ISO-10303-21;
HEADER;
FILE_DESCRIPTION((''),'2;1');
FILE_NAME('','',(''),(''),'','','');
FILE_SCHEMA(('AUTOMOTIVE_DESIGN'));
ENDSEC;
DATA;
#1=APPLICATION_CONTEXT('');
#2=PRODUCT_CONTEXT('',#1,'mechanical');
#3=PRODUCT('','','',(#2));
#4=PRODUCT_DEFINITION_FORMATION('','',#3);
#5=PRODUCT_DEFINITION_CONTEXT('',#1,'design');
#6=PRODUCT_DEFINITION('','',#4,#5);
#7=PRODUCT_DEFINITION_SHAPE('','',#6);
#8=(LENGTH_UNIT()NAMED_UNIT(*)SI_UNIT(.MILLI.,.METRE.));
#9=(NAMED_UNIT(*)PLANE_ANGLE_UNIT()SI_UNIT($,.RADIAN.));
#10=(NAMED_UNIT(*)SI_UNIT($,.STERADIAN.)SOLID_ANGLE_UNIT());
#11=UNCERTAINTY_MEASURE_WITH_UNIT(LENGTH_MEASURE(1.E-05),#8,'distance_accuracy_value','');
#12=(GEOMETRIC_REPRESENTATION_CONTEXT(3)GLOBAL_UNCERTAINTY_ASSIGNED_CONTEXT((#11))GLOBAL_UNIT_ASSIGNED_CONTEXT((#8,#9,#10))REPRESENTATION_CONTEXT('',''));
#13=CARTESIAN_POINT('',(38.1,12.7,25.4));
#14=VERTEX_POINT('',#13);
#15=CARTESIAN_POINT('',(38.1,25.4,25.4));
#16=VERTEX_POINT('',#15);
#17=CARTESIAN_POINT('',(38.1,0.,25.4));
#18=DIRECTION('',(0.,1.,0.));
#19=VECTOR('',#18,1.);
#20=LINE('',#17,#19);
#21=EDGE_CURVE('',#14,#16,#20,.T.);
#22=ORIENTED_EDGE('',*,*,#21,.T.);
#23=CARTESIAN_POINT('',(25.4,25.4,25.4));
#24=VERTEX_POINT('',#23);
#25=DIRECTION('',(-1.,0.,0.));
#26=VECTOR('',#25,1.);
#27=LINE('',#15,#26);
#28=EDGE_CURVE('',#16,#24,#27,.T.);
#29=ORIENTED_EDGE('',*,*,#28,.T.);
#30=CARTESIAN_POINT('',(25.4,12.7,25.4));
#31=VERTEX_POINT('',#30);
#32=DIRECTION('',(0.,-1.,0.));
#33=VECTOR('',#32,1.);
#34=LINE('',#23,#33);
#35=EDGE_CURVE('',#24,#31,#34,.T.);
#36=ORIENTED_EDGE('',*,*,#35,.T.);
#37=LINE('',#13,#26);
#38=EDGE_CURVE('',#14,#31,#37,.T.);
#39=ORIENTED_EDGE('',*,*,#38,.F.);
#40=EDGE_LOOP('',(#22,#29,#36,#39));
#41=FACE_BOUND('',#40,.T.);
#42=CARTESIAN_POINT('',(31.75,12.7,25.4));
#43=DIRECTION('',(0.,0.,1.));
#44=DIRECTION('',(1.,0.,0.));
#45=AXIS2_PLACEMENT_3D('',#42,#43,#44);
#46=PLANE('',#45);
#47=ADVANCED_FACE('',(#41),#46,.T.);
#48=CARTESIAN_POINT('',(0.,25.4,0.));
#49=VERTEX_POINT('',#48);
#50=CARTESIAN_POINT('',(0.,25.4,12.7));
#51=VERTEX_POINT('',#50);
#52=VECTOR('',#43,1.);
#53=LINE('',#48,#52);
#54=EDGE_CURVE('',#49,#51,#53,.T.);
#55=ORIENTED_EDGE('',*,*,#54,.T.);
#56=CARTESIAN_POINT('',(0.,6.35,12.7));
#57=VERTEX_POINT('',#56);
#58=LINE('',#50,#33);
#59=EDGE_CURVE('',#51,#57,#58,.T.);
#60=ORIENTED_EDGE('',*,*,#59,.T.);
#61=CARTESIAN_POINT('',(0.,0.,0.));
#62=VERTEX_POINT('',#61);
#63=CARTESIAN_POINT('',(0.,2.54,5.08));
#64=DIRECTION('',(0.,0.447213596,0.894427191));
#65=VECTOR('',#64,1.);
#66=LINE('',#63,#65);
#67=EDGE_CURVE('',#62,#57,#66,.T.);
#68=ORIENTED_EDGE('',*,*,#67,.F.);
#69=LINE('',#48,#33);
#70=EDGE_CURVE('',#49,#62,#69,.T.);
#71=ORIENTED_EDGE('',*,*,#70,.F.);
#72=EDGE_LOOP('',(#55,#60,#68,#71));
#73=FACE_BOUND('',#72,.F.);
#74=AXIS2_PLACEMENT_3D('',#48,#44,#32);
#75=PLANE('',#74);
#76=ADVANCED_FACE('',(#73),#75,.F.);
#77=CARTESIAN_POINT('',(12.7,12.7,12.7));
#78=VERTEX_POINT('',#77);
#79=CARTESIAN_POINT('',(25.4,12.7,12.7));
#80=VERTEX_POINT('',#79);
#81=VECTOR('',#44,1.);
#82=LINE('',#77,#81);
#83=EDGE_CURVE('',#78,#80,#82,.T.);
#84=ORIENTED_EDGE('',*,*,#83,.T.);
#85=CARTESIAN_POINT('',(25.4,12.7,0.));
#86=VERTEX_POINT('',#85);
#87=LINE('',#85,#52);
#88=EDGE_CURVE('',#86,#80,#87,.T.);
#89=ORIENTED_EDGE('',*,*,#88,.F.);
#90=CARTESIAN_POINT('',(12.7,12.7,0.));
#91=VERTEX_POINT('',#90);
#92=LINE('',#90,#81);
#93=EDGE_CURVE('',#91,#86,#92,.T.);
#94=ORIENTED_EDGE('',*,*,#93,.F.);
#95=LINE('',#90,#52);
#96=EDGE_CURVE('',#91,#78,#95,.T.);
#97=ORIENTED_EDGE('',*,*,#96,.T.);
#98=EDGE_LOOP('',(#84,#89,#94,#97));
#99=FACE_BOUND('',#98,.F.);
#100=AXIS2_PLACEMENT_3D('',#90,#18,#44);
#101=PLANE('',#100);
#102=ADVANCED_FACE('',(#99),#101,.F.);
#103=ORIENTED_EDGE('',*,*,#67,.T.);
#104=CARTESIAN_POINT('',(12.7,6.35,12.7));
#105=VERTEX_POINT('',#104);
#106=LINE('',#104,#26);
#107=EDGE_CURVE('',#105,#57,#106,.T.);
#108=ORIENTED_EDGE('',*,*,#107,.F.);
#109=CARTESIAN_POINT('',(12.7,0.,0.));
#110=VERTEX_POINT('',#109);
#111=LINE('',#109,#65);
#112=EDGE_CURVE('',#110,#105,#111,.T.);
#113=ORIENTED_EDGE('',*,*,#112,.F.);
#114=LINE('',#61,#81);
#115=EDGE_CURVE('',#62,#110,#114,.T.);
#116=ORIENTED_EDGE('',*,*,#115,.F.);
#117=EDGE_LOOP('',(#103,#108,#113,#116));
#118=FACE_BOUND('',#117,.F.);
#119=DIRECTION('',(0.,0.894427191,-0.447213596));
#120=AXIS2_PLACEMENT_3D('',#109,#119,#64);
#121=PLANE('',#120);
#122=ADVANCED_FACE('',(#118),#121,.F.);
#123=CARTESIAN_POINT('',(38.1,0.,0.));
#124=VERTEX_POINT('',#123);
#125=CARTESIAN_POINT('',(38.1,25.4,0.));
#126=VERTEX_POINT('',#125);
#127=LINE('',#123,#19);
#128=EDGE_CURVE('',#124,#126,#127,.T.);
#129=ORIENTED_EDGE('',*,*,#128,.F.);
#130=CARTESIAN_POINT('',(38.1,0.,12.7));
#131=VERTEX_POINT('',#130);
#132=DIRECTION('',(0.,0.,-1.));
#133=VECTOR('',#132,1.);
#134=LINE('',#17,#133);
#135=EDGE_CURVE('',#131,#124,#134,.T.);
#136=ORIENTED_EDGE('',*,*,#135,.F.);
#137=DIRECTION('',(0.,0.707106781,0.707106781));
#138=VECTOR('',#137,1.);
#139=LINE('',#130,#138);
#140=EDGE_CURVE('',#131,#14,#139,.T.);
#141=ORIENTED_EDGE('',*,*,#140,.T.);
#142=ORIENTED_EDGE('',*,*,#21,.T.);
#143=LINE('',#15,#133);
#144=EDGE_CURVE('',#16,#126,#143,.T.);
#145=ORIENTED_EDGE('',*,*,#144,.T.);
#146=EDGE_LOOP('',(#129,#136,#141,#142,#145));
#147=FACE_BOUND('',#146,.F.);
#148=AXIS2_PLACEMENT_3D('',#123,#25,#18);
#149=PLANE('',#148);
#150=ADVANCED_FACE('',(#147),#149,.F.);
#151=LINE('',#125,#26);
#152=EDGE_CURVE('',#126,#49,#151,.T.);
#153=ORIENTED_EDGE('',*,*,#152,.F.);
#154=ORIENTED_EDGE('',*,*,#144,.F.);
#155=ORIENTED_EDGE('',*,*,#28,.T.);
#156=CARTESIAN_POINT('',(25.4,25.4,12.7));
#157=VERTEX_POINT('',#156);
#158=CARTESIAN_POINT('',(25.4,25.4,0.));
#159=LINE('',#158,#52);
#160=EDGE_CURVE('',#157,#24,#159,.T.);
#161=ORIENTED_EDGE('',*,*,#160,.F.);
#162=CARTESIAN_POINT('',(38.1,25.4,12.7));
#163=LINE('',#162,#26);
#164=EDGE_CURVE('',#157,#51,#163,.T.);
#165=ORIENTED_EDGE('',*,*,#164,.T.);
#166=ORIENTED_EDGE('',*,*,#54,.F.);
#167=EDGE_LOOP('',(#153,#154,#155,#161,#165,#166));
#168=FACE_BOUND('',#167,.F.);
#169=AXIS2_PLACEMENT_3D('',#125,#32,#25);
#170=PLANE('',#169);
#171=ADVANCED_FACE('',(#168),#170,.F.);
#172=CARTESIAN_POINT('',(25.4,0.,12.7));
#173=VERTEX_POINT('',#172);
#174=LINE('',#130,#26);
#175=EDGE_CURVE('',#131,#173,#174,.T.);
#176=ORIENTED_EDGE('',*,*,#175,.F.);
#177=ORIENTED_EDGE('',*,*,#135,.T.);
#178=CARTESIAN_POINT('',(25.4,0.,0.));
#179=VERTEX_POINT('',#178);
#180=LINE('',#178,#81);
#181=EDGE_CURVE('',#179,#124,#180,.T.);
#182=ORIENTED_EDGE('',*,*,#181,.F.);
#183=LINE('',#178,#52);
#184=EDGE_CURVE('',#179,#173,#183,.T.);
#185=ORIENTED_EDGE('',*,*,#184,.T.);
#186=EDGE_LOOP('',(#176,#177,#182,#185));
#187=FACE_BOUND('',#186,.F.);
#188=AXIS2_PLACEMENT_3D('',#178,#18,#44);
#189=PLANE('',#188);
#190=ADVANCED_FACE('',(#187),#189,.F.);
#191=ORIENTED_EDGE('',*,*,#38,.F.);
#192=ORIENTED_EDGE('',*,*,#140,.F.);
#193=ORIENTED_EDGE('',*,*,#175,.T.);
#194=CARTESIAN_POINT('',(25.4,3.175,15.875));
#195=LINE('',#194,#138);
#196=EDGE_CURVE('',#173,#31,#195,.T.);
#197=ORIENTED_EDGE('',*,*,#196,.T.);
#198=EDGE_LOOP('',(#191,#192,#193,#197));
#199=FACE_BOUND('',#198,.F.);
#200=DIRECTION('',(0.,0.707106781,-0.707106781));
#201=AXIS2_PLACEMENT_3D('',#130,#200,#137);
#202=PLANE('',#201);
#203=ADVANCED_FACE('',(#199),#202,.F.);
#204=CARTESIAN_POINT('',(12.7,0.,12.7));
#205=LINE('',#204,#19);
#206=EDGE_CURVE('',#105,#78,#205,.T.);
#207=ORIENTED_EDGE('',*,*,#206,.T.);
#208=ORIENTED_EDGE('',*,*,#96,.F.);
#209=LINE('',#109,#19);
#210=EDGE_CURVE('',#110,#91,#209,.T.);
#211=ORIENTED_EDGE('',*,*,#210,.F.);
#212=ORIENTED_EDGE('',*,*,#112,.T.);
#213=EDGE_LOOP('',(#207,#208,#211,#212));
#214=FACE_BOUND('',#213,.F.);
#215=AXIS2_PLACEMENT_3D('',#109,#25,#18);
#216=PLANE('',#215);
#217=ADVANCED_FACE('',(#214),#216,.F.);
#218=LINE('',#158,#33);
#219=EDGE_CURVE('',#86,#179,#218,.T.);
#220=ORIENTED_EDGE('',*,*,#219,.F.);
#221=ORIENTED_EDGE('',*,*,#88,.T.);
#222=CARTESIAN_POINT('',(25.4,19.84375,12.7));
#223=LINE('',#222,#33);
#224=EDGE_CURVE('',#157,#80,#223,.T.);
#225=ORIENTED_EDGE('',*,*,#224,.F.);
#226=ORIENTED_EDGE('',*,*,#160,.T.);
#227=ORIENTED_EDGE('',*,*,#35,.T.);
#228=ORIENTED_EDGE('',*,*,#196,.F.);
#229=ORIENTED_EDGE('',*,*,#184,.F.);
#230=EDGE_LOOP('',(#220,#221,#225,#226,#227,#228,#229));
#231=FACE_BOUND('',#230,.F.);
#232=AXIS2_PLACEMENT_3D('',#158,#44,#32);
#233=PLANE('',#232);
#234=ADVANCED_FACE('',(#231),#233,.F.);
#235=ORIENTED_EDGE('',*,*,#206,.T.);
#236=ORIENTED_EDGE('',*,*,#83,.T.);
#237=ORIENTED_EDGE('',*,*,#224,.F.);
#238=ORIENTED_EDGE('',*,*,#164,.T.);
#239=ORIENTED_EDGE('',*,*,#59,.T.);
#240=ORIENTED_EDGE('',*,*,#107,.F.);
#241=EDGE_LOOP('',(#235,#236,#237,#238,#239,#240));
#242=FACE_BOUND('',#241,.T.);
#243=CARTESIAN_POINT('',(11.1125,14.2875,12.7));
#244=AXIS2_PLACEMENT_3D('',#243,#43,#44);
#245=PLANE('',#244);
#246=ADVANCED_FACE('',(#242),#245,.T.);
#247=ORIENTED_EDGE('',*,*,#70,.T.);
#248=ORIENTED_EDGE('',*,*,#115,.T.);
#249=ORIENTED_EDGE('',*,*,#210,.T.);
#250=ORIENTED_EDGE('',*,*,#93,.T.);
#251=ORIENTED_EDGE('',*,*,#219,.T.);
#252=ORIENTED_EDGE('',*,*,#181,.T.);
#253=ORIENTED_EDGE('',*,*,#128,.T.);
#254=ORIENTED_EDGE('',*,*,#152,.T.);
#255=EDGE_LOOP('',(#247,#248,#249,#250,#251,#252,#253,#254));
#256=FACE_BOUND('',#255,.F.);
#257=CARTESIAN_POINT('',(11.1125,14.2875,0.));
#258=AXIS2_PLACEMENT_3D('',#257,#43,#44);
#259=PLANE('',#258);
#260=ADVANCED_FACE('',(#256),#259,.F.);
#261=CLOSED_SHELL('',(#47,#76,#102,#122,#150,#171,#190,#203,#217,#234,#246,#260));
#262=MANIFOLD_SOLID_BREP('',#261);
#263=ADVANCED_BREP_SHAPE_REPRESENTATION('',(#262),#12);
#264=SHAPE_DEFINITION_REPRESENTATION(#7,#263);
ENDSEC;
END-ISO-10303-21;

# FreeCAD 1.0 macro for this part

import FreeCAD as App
import Part
import Sketcher
Q = App.Units.Quantity

doc = App.newDocument("Part")
params = doc.addObject("Spreadsheet::Sheet", "Params")
for row, (alias, value) in enumerate([
    ("sketch1_height", "1 in"),
    ("sketch1_width", "0.5 in"),
    ("pad1_length", "1 in"),
    ("sketch2_height", "1 in"),
    ("sketch2_width", "0.5 in"),
    ("pad2_length", "0.5 in"),
    ("sketch3_height", "0.5 in"),
    ("sketch3_width", "0.25 in"),
    ("pocket1_length", "1 in"),
    ("sketch4_width", "0.5 in"),
    ("pocket2_length", "1 in"),
], start=1):
    params.set(f"A{row}", alias)
    params.set(f"B{row}", "=" + value)
    params.setAlias(f"B{row}", alias)

body = doc.addObject("PartDesign::Body", "Body")

# Sketch on XY plane
sketch1 = doc.addObject("Sketcher::SketchObject", "Sketch")
body.addObject(sketch1)
sketch1.AttachmentSupport = (doc.XY_Plane, [""])
sketch1.MapMode = "FlatFace"
sketch1.addGeometry([
    Part.LineSegment(App.Vector(38, 25, 0), App.Vector(25, 25, 0)),
    Part.LineSegment(App.Vector(25, 25, 0), App.Vector(25, 0, 0)),
    Part.LineSegment(App.Vector(25, 0, 0), App.Vector(38, 0, 0)),
    Part.LineSegment(App.Vector(38, 0, 0), App.Vector(38, 25, 0)),
], False)
sketch1.addConstraint([
    Sketcher.Constraint("Coincident", 0, 2, 1, 1),
    Sketcher.Constraint("Coincident", 1, 2, 2, 1),
    Sketcher.Constraint("Coincident", 2, 2, 3, 1),
    Sketcher.Constraint("Coincident", 3, 2, 0, 1),
    Sketcher.Constraint("Horizontal", 0),
    Sketcher.Constraint("Vertical", 1),
    Sketcher.Constraint("Horizontal", 2),
    Sketcher.Constraint("Vertical", 3),
    Sketcher.Constraint("PointOnObject", 1, 2, -1),
    Sketcher.Constraint("DistanceY", 1, 2, 1, 1, Q("1 in")),
    Sketcher.Constraint("DistanceX", 0, 2, 0, 1, Q("0.5 in")),
    Sketcher.Constraint("DistanceX", -1, 1, 0, 2, Q("1 in")),
])
sketch1.setExpression("Constraints[9]", "Params.sketch1_height")
sketch1.setExpression("Constraints[10]", "Params.sketch1_width")
pad1 = doc.addObject("PartDesign::Pad", "Pad")
body.addObject(pad1)
pad1.Profile = sketch1
pad1.setExpression("Length", "Params.pad1_length")

# Sketch on XY plane
sketch2 = doc.addObject("Sketcher::SketchObject", "Sketch001")
body.addObject(sketch2)
sketch2.AttachmentSupport = (doc.XY_Plane, [""])
sketch2.MapMode = "FlatFace"
sketch2.addGeometry([
    Part.LineSegment(App.Vector(0, 25, 0), App.Vector(0, 0, 0)),  # 0
    Part.LineSegment(App.Vector(0, 0, 0), App.Vector(13, 0, 0)),  # 1
    Part.LineSegment(App.Vector(13, 0, 0), App.Vector(13, 13, 0)),  # 2
    Part.LineSegment(App.Vector(13, 13, 0), App.Vector(25, 13, 0)),  # 3
    Part.LineSegment(App.Vector(25, 13, 0), App.Vector(25, 0, 0)),  # 4
    Part.LineSegment(App.Vector(25, 0, 0), App.Vector(38, 0, 0)),  # 5
    Part.LineSegment(App.Vector(38, 0, 0), App.Vector(38, 25, 0)),  # 6
    Part.LineSegment(App.Vector(38, 25, 0), App.Vector(0, 25, 0)),  # 7
], False)
sketch2.addConstraint([
    Sketcher.Constraint("Coincident", 0, 2, 1, 1),
    Sketcher.Constraint("Coincident", 1, 2, 2, 1),
    Sketcher.Constraint("Coincident", 2, 2, 3, 1),
    Sketcher.Constraint("Coincident", 3, 2, 4, 1),
    Sketcher.Constraint("Coincident", 4, 2, 5, 1),
    Sketcher.Constraint("Coincident", 5, 2, 6, 1),
    Sketcher.Constraint("Coincident", 6, 2, 7, 1),
    Sketcher.Constraint("Coincident", 7, 2, 0, 1),
    Sketcher.Constraint("Vertical", 0),
    Sketcher.Constraint("Horizontal", 1),
    Sketcher.Constraint("Vertical", 2),
    Sketcher.Constraint("Horizontal", 3),
    Sketcher.Constraint("Vertical", 4),
    Sketcher.Constraint("Horizontal", 5),
    Sketcher.Constraint("Vertical", 6),
    Sketcher.Constraint("Horizontal", 7),
    Sketcher.Constraint("Coincident", 0, 2, -1, 1),
    Sketcher.Constraint("PointOnObject", 4, 2, -1),
    Sketcher.Constraint("Equal", 1, 3),
    Sketcher.Constraint("Equal", 3, 5),
    Sketcher.Constraint("Equal", 5, 2),
    Sketcher.Constraint("DistanceY", 0, 2, 0, 1, Q("1 in")),
    Sketcher.Constraint("DistanceX", 1, 1, 1, 2, Q("0.5 in")),
])
sketch2.setExpression("Constraints[21]", "Params.sketch2_height")
sketch2.setExpression("Constraints[22]", "Params.sketch2_width")
pad2 = doc.addObject("PartDesign::Pad", "Pad001")
body.addObject(pad2)
pad2.Profile = sketch2
pad2.setExpression("Length", "Params.pad2_length")

# Sketch on YZ plane
sketch3 = doc.addObject("Sketcher::SketchObject", "Sketch002")
body.addObject(sketch3)
sketch3.AttachmentSupport = (doc.YZ_Plane, [""])
sketch3.MapMode = "FlatFace"
sketch3.AttachmentOffset = App.Placement(App.Vector(0, 0, 0.5 * 25.4), App.Rotation())
sketch3.addGeometry([
    Part.LineSegment(App.Vector(0, 0, 0), App.Vector(6, 13, 0)),
    Part.LineSegment(App.Vector(6, 13, 0), App.Vector(0, 13, 0)),
    Part.LineSegment(App.Vector(0, 13, 0), App.Vector(0, 0, 0)),
], False)
sketch3.addConstraint([
    Sketcher.Constraint("Coincident", 0, 2, 1, 1),
    Sketcher.Constraint("Coincident", 1, 2, 2, 1),
    Sketcher.Constraint("Coincident", 2, 2, 0, 1),
    Sketcher.Constraint("Horizontal", 1),
    Sketcher.Constraint("Vertical", 2),
    Sketcher.Constraint("Coincident", 2, 2, -1, 1),
    Sketcher.Constraint("DistanceY", 2, 2, 2, 1, Q("0.5 in")),
    Sketcher.Constraint("DistanceX", 1, 2, 1, 1, Q("0.25 in")),
])
sketch3.setExpression("Constraints[6]", "Params.sketch3_height")
sketch3.setExpression("Constraints[7]", "Params.sketch3_width")
pocket1 = doc.addObject("PartDesign::Pocket", "Pocket")
body.addObject(pocket1)
pocket1.Profile = sketch3
pocket1.setExpression("Length", "Params.pocket1_length")

# Sketch on YZ plane
sketch4 = doc.addObject("Sketcher::SketchObject", "Sketch003")
body.addObject(sketch4)
sketch4.AttachmentSupport = (doc.YZ_Plane, [""])
sketch4.MapMode = "FlatFace"
sketch4.AttachmentOffset = App.Placement(App.Vector(0, 0, 1.5 * 25.4), App.Rotation())
sketch4.addGeometry([
    Part.LineSegment(App.Vector(0, 13, 0), App.Vector(13, 25, 0)),
    Part.LineSegment(App.Vector(13, 25, 0), App.Vector(0, 25, 0)),
    Part.LineSegment(App.Vector(0, 25, 0), App.Vector(0, 13, 0)),
], False)
sketch4.addConstraint([
    Sketcher.Constraint("Coincident", 0, 2, 1, 1),
    Sketcher.Constraint("Coincident", 1, 2, 2, 1),
    Sketcher.Constraint("Coincident", 2, 2, 0, 1),
    Sketcher.Constraint("Horizontal", 1),
    Sketcher.Constraint("Vertical", 2),
    Sketcher.Constraint("PointOnObject", 1, 2, -2),
    Sketcher.Constraint("Equal", 1, 2),
    Sketcher.Constraint("DistanceX", 1, 2, 1, 1, Q("0.5 in")),
    Sketcher.Constraint("DistanceY", -1, 1, 0, 2, Q("1 in")),
])
sketch4.setExpression("Constraints[7]", "Params.sketch4_width")
pocket2 = doc.addObject("PartDesign::Pocket", "Pocket001")
body.addObject(pocket2)
pocket2.Profile = sketch4
pocket2.setExpression("Length", "Params.pocket2_length")

doc.recompute()
